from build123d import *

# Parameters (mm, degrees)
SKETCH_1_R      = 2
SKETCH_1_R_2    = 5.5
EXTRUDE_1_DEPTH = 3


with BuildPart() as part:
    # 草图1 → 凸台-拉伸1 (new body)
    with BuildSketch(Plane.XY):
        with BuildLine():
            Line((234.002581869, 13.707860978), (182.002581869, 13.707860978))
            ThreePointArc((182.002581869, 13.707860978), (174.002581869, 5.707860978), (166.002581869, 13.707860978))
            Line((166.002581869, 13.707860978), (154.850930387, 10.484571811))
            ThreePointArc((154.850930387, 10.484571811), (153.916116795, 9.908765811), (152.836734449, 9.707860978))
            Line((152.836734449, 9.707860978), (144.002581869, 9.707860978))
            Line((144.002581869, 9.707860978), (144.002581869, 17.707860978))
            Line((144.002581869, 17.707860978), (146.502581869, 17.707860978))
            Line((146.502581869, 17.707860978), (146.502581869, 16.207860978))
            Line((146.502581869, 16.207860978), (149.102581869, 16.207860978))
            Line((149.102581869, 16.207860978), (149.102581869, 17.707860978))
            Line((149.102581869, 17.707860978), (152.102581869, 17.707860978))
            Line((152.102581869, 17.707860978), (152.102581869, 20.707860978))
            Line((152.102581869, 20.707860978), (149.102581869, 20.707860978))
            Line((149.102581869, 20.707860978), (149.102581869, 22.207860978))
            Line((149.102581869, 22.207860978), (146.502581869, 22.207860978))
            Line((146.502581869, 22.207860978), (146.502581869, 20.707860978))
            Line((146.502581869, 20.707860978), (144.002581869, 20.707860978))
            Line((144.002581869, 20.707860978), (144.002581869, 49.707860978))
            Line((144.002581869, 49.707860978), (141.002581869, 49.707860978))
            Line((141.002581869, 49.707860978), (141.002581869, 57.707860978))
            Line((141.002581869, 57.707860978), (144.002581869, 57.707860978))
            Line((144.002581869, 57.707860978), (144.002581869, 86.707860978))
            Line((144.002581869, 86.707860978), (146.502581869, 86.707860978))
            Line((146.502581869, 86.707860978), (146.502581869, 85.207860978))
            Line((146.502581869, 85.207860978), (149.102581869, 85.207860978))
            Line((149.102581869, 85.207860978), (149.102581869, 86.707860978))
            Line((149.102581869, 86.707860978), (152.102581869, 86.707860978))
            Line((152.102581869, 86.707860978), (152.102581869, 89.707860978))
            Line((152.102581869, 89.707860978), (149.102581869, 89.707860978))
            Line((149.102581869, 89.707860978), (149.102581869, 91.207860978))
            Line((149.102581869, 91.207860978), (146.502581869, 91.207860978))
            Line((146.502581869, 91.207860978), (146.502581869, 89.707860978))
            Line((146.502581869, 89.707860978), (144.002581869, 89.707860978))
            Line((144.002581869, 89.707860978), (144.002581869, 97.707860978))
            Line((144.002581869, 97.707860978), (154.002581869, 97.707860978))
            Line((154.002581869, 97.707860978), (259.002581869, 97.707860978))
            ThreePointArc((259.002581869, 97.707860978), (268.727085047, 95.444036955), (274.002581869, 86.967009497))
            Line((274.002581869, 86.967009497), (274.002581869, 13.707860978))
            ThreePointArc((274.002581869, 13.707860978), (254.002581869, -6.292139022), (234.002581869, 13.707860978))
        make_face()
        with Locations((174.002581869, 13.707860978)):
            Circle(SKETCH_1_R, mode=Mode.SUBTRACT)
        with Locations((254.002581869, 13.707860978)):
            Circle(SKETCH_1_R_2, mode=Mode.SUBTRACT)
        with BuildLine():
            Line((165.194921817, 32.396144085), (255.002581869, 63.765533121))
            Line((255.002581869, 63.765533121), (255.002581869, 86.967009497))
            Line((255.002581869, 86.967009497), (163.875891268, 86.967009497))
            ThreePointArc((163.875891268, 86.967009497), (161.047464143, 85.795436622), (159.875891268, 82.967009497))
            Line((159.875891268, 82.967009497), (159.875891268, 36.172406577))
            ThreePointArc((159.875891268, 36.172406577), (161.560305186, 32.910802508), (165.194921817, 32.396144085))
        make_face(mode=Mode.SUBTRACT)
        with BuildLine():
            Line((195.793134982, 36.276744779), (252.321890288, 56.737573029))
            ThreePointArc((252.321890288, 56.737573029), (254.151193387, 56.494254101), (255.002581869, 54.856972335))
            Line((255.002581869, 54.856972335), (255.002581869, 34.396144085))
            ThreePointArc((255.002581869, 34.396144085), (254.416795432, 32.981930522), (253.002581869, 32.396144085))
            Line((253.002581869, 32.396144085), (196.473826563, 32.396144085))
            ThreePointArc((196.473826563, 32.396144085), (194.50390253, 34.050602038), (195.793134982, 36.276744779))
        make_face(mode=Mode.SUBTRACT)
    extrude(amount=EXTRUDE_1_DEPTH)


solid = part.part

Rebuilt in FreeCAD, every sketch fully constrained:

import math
import FreeCAD as App
import Part
import Sketcher
Q = App.Units.Quantity

doc = App.newDocument("Part")
body = doc.addObject("PartDesign::Body", "Body")

sketch1 = body.newObject("Sketcher::SketchObject", "Sketch")
sketch1.AttachmentSupport = (doc.getObject("XY_Plane"), [""])
sketch1.MapMode = "FlatFace"
sketch1.addGeometry(Part.LineSegment(App.Vector(182, 13.7, 0), App.Vector(234, 13.7, 0)), False)
sketch1.addGeometry(Part.ArcOfCircle(Part.Circle(App.Vector(254, 13.7, 0), App.Vector(0, 0, 1), 20), math.radians(180), math.radians(360)), False)
sketch1.addGeometry(Part.LineSegment(App.Vector(274, 13.7, 0), App.Vector(274, 87, 0)), False)
sketch1.addGeometry(Part.ArcOfCircle(Part.Circle(App.Vector(261.1, 84.8, 0), App.Vector(0, 0, 1), 13), math.radians(9), math.radians(99)), False)
sketch1.addGeometry(Part.LineSegment(App.Vector(259, 97.7, 0), App.Vector(144, 97.7, 0)), False)
sketch1.addGeometry(Part.LineSegment(App.Vector(144, 97.7, 0), App.Vector(144, 89.7, 0)), False)
sketch1.addGeometry(Part.LineSegment(App.Vector(144, 89.7, 0), App.Vector(146.5, 89.7, 0)), False)
sketch1.addGeometry(Part.LineSegment(App.Vector(146.5, 89.7, 0), App.Vector(146.5, 91.2, 0)), False)
sketch1.addGeometry(Part.LineSegment(App.Vector(146.5, 91.2, 0), App.Vector(149.1, 91.2, 0)), False)
sketch1.addGeometry(Part.LineSegment(App.Vector(149.1, 91.2, 0), App.Vector(149.1, 89.7, 0)), False)
sketch1.addGeometry(Part.LineSegment(App.Vector(149.1, 89.7, 0), App.Vector(152.1, 89.7, 0)), False)
sketch1.addGeometry(Part.LineSegment(App.Vector(152.1, 89.7, 0), App.Vector(152.1, 86.7, 0)), False)
sketch1.addGeometry(Part.LineSegment(App.Vector(152.1, 86.7, 0), App.Vector(149.1, 86.7, 0)), False)
sketch1.addGeometry(Part.LineSegment(App.Vector(149.1, 86.7, 0), App.Vector(149.1, 85.2, 0)), False)
sketch1.addGeometry(Part.LineSegment(App.Vector(149.1, 85.2, 0), App.Vector(146.5, 85.2, 0)), False)
sketch1.addGeometry(Part.LineSegment(App.Vector(146.5, 85.2, 0), App.Vector(146.5, 86.7, 0)), False)
sketch1.addGeometry(Part.LineSegment(App.Vector(146.5, 86.7, 0), App.Vector(144, 86.7, 0)), False)
sketch1.addGeometry(Part.LineSegment(App.Vector(144, 86.7, 0), App.Vector(144, 57.7, 0)), False)
sketch1.addGeometry(Part.LineSegment(App.Vector(144, 57.7, 0), App.Vector(141, 57.7, 0)), False)
sketch1.addGeometry(Part.LineSegment(App.Vector(141, 57.7, 0), App.Vector(141, 49.7, 0)), False)
sketch1.addGeometry(Part.LineSegment(App.Vector(141, 49.7, 0), App.Vector(144, 49.7, 0)), False)
sketch1.addGeometry(Part.LineSegment(App.Vector(144, 49.7, 0), App.Vector(144, 20.7, 0)), False)
sketch1.addGeometry(Part.LineSegment(App.Vector(144, 20.7, 0), App.Vector(146.5, 20.7, 0)), False)
sketch1.addGeometry(Part.LineSegment(App.Vector(146.5, 20.7, 0), App.Vector(146.5, 22.2, 0)), False)
sketch1.addGeometry(Part.LineSegment(App.Vector(146.5, 22.2, 0), App.Vector(149.1, 22.2, 0)), False)
sketch1.addGeometry(Part.LineSegment(App.Vector(149.1, 22.2, 0), App.Vector(149.1, 20.7, 0)), False)
sketch1.addGeometry(Part.LineSegment(App.Vector(149.1, 20.7, 0), App.Vector(152.1, 20.7, 0)), False)
sketch1.addGeometry(Part.LineSegment(App.Vector(152.1, 20.7, 0), App.Vector(152.1, 17.7, 0)), False)
sketch1.addGeometry(Part.LineSegment(App.Vector(152.1, 17.7, 0), App.Vector(149.1, 17.7, 0)), False)
sketch1.addGeometry(Part.LineSegment(App.Vector(149.1, 17.7, 0), App.Vector(149.1, 16.2, 0)), False)
sketch1.addGeometry(Part.LineSegment(App.Vector(149.1, 16.2, 0), App.Vector(146.5, 16.2, 0)), False)
sketch1.addGeometry(Part.LineSegment(App.Vector(146.5, 16.2, 0), App.Vector(146.5, 17.7, 0)), False)
sketch1.addGeometry(Part.LineSegment(App.Vector(146.5, 17.7, 0), App.Vector(144, 17.7, 0)), False)
sketch1.addGeometry(Part.LineSegment(App.Vector(144, 17.7, 0), App.Vector(144, 9.7, 0)), False)
sketch1.addGeometry(Part.LineSegment(App.Vector(144, 9.7, 0), App.Vector(152.8, 9.7, 0)), False)
sketch1.addGeometry(Part.ArcOfCircle(Part.Circle(App.Vector(152.8, 12.7, 0), App.Vector(0, 0, 1), 3), math.radians(-90), math.radians(-48)), False)
sketch1.addGeometry(Part.LineSegment(App.Vector(154.9, 10.5, 0), App.Vector(166, 13.7, 0)), False)
sketch1.addGeometry(Part.ArcOfCircle(Part.Circle(App.Vector(174, 13.7, 0), App.Vector(0, 0, 1), 8), math.radians(180), math.radians(360)), False)
sketch1.addGeometry(Part.Circle(App.Vector(254, 13.7, 0), App.Vector(0, 0, 1), 5.5), False)
sketch1.addGeometry(Part.LineSegment(App.Vector(195.8, 36.3, 0), App.Vector(252.3, 56.7, 0)), False)
sketch1.addGeometry(Part.ArcOfCircle(Part.Circle(App.Vector(253, 54.9, 0), App.Vector(0, 0, 1), 2), math.radians(0), math.radians(110)), False)
sketch1.addGeometry(Part.LineSegment(App.Vector(255, 54.9, 0), App.Vector(255, 34.4, 0)), False)
sketch1.addGeometry(Part.ArcOfCircle(Part.Circle(App.Vector(253, 34.4, 0), App.Vector(0, 0, 1), 2), math.radians(-90), math.radians(0)), False)
sketch1.addGeometry(Part.LineSegment(App.Vector(253, 32.4, 0), App.Vector(196.5, 32.4, 0)), False)
sketch1.addGeometry(Part.ArcOfCircle(Part.Circle(App.Vector(196.5, 34.4, 0), App.Vector(0, 0, 1), 2), math.radians(110), math.radians(270)), False)
sketch1.addGeometry(Part.Circle(App.Vector(174, 13.7, 0), App.Vector(0, 0, 1), 2), False)
sketch1.addGeometry(Part.ArcOfCircle(Part.Circle(App.Vector(163.9, 36.2, 0), App.Vector(0, 0, 1), 4), math.radians(180), math.radians(289)), False)
sketch1.addGeometry(Part.LineSegment(App.Vector(159.9, 36.2, 0), App.Vector(159.9, 83, 0)), False)
sketch1.addGeometry(Part.ArcOfCircle(Part.Circle(App.Vector(163.9, 83, 0), App.Vector(0, 0, 1), 4), math.radians(90), math.radians(180)), False)
sketch1.addGeometry(Part.LineSegment(App.Vector(163.9, 87, 0), App.Vector(255, 87, 0)), False)
sketch1.addGeometry(Part.LineSegment(App.Vector(255, 87, 0), App.Vector(255, 63.8, 0)), False)
sketch1.addGeometry(Part.LineSegment(App.Vector(255, 63.8, 0), App.Vector(165.2, 32.4, 0)), False)
sketch1.addConstraint(Sketcher.Constraint("Coincident", 0, 2, 1, 1))
sketch1.addConstraint(Sketcher.Constraint("Tangent", 1, 2, 2, 1))
sketch1.addConstraint(Sketcher.Constraint("Coincident", 2, 2, 3, 1))
sketch1.addConstraint(Sketcher.Constraint("Coincident", 3, 2, 4, 1))
sketch1.addConstraint(Sketcher.Constraint("Coincident", 4, 2, 5, 1))
sketch1.addConstraint(Sketcher.Constraint("Coincident", 5, 2, 6, 1))
sketch1.addConstraint(Sketcher.Constraint("Coincident", 6, 2, 7, 1))
sketch1.addConstraint(Sketcher.Constraint("Coincident", 7, 2, 8, 1))
sketch1.addConstraint(Sketcher.Constraint("Coincident", 8, 2, 9, 1))
sketch1.addConstraint(Sketcher.Constraint("Coincident", 9, 2, 10, 1))
sketch1.addConstraint(Sketcher.Constraint("Coincident", 10, 2, 11, 1))
sketch1.addConstraint(Sketcher.Constraint("Coincident", 11, 2, 12, 1))
sketch1.addConstraint(Sketcher.Constraint("Coincident", 12, 2, 13, 1))
sketch1.addConstraint(Sketcher.Constraint("Coincident", 13, 2, 14, 1))
sketch1.addConstraint(Sketcher.Constraint("Coincident", 14, 2, 15, 1))
sketch1.addConstraint(Sketcher.Constraint("Coincident", 15, 2, 16, 1))
sketch1.addConstraint(Sketcher.Constraint("Coincident", 16, 2, 17, 1))
sketch1.addConstraint(Sketcher.Constraint("Coincident", 17, 2, 18, 1))
sketch1.addConstraint(Sketcher.Constraint("Coincident", 18, 2, 19, 1))
sketch1.addConstraint(Sketcher.Constraint("Coincident", 19, 2, 20, 1))
sketch1.addConstraint(Sketcher.Constraint("Coincident", 20, 2, 21, 1))
sketch1.addConstraint(Sketcher.Constraint("Coincident", 21, 2, 22, 1))
sketch1.addConstraint(Sketcher.Constraint("Coincident", 22, 2, 23, 1))
sketch1.addConstraint(Sketcher.Constraint("Coincident", 23, 2, 24, 1))
sketch1.addConstraint(Sketcher.Constraint("Coincident", 24, 2, 25, 1))
sketch1.addConstraint(Sketcher.Constraint("Coincident", 25, 2, 26, 1))
sketch1.addConstraint(Sketcher.Constraint("Coincident", 26, 2, 27, 1))
sketch1.addConstraint(Sketcher.Constraint("Coincident", 27, 2, 28, 1))
sketch1.addConstraint(Sketcher.Constraint("Coincident", 28, 2, 29, 1))
sketch1.addConstraint(Sketcher.Constraint("Coincident", 29, 2, 30, 1))
sketch1.addConstraint(Sketcher.Constraint("Coincident", 30, 2, 31, 1))
sketch1.addConstraint(Sketcher.Constraint("Coincident", 31, 2, 32, 1))
sketch1.addConstraint(Sketcher.Constraint("Coincident", 32, 2, 33, 1))
sketch1.addConstraint(Sketcher.Constraint("Coincident", 33, 2, 34, 1))
sketch1.addConstraint(Sketcher.Constraint("Tangent", 34, 2, 35, 1))
sketch1.addConstraint(Sketcher.Constraint("Coincident", 35, 2, 36, 1))
sketch1.addConstraint(Sketcher.Constraint("Coincident", 36, 2, 37, 1))
sketch1.addConstraint(Sketcher.Constraint("Coincident", 37, 2, 0, 1))
sketch1.addConstraint(Sketcher.Constraint("Tangent", 39, 2, 40, 2))
sketch1.addConstraint(Sketcher.Constraint("Tangent", 40, 1, 41, 1))
sketch1.addConstraint(Sketcher.Constraint("Tangent", 41, 2, 42, 2))
sketch1.addConstraint(Sketcher.Constraint("Tangent", 42, 1, 43, 1))
sketch1.addConstraint(Sketcher.Constraint("Tangent", 43, 2, 44, 2))
sketch1.addConstraint(Sketcher.Constraint("Tangent", 44, 1, 39, 1))
sketch1.addConstraint(Sketcher.Constraint("Tangent", 46, 1, 47, 1))
sketch1.addConstraint(Sketcher.Constraint("Tangent", 47, 2, 48, 2))
sketch1.addConstraint(Sketcher.Constraint("Tangent", 48, 1, 49, 1))
sketch1.addConstraint(Sketcher.Constraint("Coincident", 49, 2, 50, 1))
sketch1.addConstraint(Sketcher.Constraint("Coincident", 50, 2, 51, 1))
sketch1.addConstraint(Sketcher.Constraint("Tangent", 51, 2, 46, 2))
sketch1.addConstraint(Sketcher.Constraint("Horizontal", 0))
sketch1.addConstraint(Sketcher.Constraint("Vertical", 2))
sketch1.addConstraint(Sketcher.Constraint("Horizontal", 4))
sketch1.addConstraint(Sketcher.Constraint("Vertical", 5))
sketch1.addConstraint(Sketcher.Constraint("Horizontal", 6))
sketch1.addConstraint(Sketcher.Constraint("Vertical", 7))
sketch1.addConstraint(Sketcher.Constraint("Horizontal", 8))
sketch1.addConstraint(Sketcher.Constraint("Vertical", 9))
sketch1.addConstraint(Sketcher.Constraint("Horizontal", 10))
sketch1.addConstraint(Sketcher.Constraint("Vertical", 11))
sketch1.addConstraint(Sketcher.Constraint("Horizontal", 12))
sketch1.addConstraint(Sketcher.Constraint("Vertical", 13))
sketch1.addConstraint(Sketcher.Constraint("Horizontal", 14))
sketch1.addConstraint(Sketcher.Constraint("Vertical", 15))
sketch1.addConstraint(Sketcher.Constraint("Horizontal", 16))
sketch1.addConstraint(Sketcher.Constraint("Vertical", 17))
sketch1.addConstraint(Sketcher.Constraint("Horizontal", 18))
sketch1.addConstraint(Sketcher.Constraint("Vertical", 19))
sketch1.addConstraint(Sketcher.Constraint("Horizontal", 20))
sketch1.addConstraint(Sketcher.Constraint("Vertical", 21))
sketch1.addConstraint(Sketcher.Constraint("Horizontal", 22))
sketch1.addConstraint(Sketcher.Constraint("Vertical", 23))
sketch1.addConstraint(Sketcher.Constraint("Horizontal", 24))
sketch1.addConstraint(Sketcher.Constraint("Vertical", 25))
sketch1.addConstraint(Sketcher.Constraint("Horizontal", 26))
sketch1.addConstraint(Sketcher.Constraint("Vertical", 27))
sketch1.addConstraint(Sketcher.Constraint("Horizontal", 28))
sketch1.addConstraint(Sketcher.Constraint("Vertical", 29))
sketch1.addConstraint(Sketcher.Constraint("Horizontal", 30))
sketch1.addConstraint(Sketcher.Constraint("Vertical", 31))
sketch1.addConstraint(Sketcher.Constraint("Horizontal", 32))
sketch1.addConstraint(Sketcher.Constraint("Vertical", 33))
sketch1.addConstraint(Sketcher.Constraint("Horizontal", 34))
sketch1.addConstraint(Sketcher.Constraint("Vertical", 41))
sketch1.addConstraint(Sketcher.Constraint("Horizontal", 43))
sketch1.addConstraint(Sketcher.Constraint("Vertical", 47))
sketch1.addConstraint(Sketcher.Constraint("Horizontal", 49))
sketch1.addConstraint(Sketcher.Constraint("Vertical", 50))
sketch1.addConstraint(Sketcher.Constraint("Coincident", 38, 3, 1, 3))
sketch1.addConstraint(Sketcher.Constraint("Coincident", 45, 3, 37, 3))
sketch1.addConstraint(Sketcher.Constraint("Equal", 40, 42))
sketch1.addConstraint(Sketcher.Constraint("Equal", 42, 44))
sketch1.addConstraint(Sketcher.Constraint("Equal", 44, 45))
sketch1.addConstraint(Sketcher.Constraint("Equal", 46, 48))
sketch1.addConstraint(Sketcher.Constraint("Horizontal", 1, 3, 37, 3))
sketch1.addConstraint(Sketcher.Constraint("Horizontal", 45, 3, 0, 2))
sketch1.addConstraint(Sketcher.Constraint("Horizontal", 6, 2, 9, 2))
sketch1.addConstraint(Sketcher.Constraint("Horizontal", 12, 2, 15, 2))
sketch1.addConstraint(Sketcher.Constraint("Horizontal", 22, 2, 25, 2))
sketch1.addConstraint(Sketcher.Constraint("Horizontal", 28, 2, 31, 2))
sketch1.addConstraint(Sketcher.Constraint("Horizontal", 1, 2, 36, 2))
sketch1.addConstraint(Sketcher.Constraint("Horizontal", 2, 2, 48, 1))
sketch1.addConstraint(Sketcher.Constraint("Horizontal", 43, 2, 51, 2))
sketch1.addConstraint(Sketcher.Constraint("Vertical", 9, 2, 12, 2))
sketch1.addConstraint(Sketcher.Constraint("Vertical", 7, 2, 14, 2))
sketch1.addConstraint(Sketcher.Constraint("Vertical", 5, 2, 16, 2))
sketch1.addConstraint(Sketcher.Constraint("Vertical", 17, 2, 20, 2))
sketch1.addConstraint(Sketcher.Constraint("Vertical", 15, 2, 22, 2))
sketch1.addConstraint(Sketcher.Constraint("Vertical", 13, 2, 24, 2))
sketch1.addConstraint(Sketcher.Constraint("Vertical", 11, 2, 26, 2))
sketch1.addConstraint(Sketcher.Constraint("Vertical", 25, 2, 28, 2))
sketch1.addConstraint(Sketcher.Constraint("Vertical", 23, 2, 30, 2))
sketch1.addConstraint(Sketcher.Constraint("Vertical", 21, 2, 32, 2))
sketch1.addConstraint(Sketcher.Constraint("Vertical", 41, 2, 49, 2))
sketch1.addConstraint(Sketcher.Constraint("Equal", 12, 18))
sketch1.addConstraint(Sketcher.Constraint("Equal", 28, 11))
sketch1.addConstraint(Sketcher.Constraint("Equal", 9, 13))
sketch1.addConstraint(Sketcher.Constraint("Equal", 5, 19))
sketch1.addConstraint(Sketcher.Constraint("Equal", 17, 21))
sketch1.addConstraint(Sketcher.Constraint("Equal", 15, 23))
sketch1.addConstraint(Sketcher.Constraint("Equal", 11, 27))
sketch1.addConstraint(Sketcher.Constraint("Equal", 25, 29))
sketch1.addConstraint(Sketcher.Constraint("Equal", 19, 33))
sketch1.addConstraint(Sketcher.Constraint("Diameter", 38, Q("11 mm")))
sketch1.addConstraint(Sketcher.Constraint("Diameter", 45, Q("4 mm")))
sketch1.addConstraint(Sketcher.Constraint("Radius", 1, Q("20 mm")))
sketch1.addConstraint(Sketcher.Constraint("Radius", 35, Q("3 mm")))
sketch1.addConstraint(Sketcher.Constraint("Radius", 37, Q("8 mm")))
sketch1.addConstraint(Sketcher.Constraint("Radius", 46, Q("4 mm")))
sketch1.addConstraint(Sketcher.Constraint("DistanceX", 0, 1, 0, 2, Q("52 mm")))
sketch1.addConstraint(Sketcher.Constraint("DistanceX", 4, 2, 4, 1, Q("115 mm")))
sketch1.addConstraint(Sketcher.Constraint("DistanceX", 10, 1, 10, 2, Q("3 mm")))
sketch1.addConstraint(Sketcher.Constraint("DistanceY", 5, 2, 5, 1, Q("8 mm")))
sketch1.addConstraint(Sketcher.Constraint("DistanceY", 17, 2, 17, 1, Q("29 mm")))
sketch1.addConstraint(Sketcher.Constraint("DistanceX", 6, 1, 6, 2, Q("2.5 mm")))
sketch1.addConstraint(Sketcher.Constraint("DistanceX", 8, 1, 8, 2, Q("2.6 mm")))
sketch1.addConstraint(Sketcher.Constraint("DistanceY", 7, 1, 7, 2, Q("1.5 mm")))
sketch1.addConstraint(Sketcher.Constraint("Radius", 3, Q("13.045419 mm")))
sketch1.addConstraint(Sketcher.Constraint("DistanceX", 49, 1, 49, 2, Q("91.126691 mm")))
sketch1.addConstraint(Sketcher.Constraint("DistanceY", 2, 1, 2, 2, Q("73.259149 mm")))
sketch1.addConstraint(Sketcher.Constraint("DistanceY", 41, 2, 41, 1, Q("20.460828 mm")))
sketch1.addConstraint(Sketcher.Constraint("Distance", 36, Q("11.60814 mm")))
sketch1.addConstraint(Sketcher.Constraint("Distance", 51, Q("95.12862 mm")))
sketch1.addConstraint(Sketcher.Constraint("DistanceX", 34, 1, 34, 2, Q("8.834153 mm")))
sketch1.addConstraint(Sketcher.Constraint("DistanceX", 43, 2, 43, 1, Q("56.528755 mm")))
sketch1.addConstraint(Sketcher.Constraint("DistanceY", 47, 1, 47, 2, Q("46.794603 mm")))
sketch1.addConstraint(Sketcher.Constraint("DistanceX", -1, 1, 1, 3, Q("254.002582 mm")))
sketch1.addConstraint(Sketcher.Constraint("DistanceY", -1, 1, 1, 3, Q("13.707861 mm")))
sketch1.addConstraint(Sketcher.Constraint("DistanceY", -1, 1, 35, 3, Q("12.707861 mm")))
sketch1.addConstraint(Sketcher.Constraint("DistanceX", -1, 1, 40, 3, Q("253.002582 mm")))
sketch1.addConstraint(Sketcher.Constraint("DistanceX", -1, 1, 3, 2, Q("259.002582 mm")))
pad1 = body.newObject("PartDesign::Pad", "Pad")
pad1.Profile = sketch1
pad1.Length = 3

doc.recompute()
